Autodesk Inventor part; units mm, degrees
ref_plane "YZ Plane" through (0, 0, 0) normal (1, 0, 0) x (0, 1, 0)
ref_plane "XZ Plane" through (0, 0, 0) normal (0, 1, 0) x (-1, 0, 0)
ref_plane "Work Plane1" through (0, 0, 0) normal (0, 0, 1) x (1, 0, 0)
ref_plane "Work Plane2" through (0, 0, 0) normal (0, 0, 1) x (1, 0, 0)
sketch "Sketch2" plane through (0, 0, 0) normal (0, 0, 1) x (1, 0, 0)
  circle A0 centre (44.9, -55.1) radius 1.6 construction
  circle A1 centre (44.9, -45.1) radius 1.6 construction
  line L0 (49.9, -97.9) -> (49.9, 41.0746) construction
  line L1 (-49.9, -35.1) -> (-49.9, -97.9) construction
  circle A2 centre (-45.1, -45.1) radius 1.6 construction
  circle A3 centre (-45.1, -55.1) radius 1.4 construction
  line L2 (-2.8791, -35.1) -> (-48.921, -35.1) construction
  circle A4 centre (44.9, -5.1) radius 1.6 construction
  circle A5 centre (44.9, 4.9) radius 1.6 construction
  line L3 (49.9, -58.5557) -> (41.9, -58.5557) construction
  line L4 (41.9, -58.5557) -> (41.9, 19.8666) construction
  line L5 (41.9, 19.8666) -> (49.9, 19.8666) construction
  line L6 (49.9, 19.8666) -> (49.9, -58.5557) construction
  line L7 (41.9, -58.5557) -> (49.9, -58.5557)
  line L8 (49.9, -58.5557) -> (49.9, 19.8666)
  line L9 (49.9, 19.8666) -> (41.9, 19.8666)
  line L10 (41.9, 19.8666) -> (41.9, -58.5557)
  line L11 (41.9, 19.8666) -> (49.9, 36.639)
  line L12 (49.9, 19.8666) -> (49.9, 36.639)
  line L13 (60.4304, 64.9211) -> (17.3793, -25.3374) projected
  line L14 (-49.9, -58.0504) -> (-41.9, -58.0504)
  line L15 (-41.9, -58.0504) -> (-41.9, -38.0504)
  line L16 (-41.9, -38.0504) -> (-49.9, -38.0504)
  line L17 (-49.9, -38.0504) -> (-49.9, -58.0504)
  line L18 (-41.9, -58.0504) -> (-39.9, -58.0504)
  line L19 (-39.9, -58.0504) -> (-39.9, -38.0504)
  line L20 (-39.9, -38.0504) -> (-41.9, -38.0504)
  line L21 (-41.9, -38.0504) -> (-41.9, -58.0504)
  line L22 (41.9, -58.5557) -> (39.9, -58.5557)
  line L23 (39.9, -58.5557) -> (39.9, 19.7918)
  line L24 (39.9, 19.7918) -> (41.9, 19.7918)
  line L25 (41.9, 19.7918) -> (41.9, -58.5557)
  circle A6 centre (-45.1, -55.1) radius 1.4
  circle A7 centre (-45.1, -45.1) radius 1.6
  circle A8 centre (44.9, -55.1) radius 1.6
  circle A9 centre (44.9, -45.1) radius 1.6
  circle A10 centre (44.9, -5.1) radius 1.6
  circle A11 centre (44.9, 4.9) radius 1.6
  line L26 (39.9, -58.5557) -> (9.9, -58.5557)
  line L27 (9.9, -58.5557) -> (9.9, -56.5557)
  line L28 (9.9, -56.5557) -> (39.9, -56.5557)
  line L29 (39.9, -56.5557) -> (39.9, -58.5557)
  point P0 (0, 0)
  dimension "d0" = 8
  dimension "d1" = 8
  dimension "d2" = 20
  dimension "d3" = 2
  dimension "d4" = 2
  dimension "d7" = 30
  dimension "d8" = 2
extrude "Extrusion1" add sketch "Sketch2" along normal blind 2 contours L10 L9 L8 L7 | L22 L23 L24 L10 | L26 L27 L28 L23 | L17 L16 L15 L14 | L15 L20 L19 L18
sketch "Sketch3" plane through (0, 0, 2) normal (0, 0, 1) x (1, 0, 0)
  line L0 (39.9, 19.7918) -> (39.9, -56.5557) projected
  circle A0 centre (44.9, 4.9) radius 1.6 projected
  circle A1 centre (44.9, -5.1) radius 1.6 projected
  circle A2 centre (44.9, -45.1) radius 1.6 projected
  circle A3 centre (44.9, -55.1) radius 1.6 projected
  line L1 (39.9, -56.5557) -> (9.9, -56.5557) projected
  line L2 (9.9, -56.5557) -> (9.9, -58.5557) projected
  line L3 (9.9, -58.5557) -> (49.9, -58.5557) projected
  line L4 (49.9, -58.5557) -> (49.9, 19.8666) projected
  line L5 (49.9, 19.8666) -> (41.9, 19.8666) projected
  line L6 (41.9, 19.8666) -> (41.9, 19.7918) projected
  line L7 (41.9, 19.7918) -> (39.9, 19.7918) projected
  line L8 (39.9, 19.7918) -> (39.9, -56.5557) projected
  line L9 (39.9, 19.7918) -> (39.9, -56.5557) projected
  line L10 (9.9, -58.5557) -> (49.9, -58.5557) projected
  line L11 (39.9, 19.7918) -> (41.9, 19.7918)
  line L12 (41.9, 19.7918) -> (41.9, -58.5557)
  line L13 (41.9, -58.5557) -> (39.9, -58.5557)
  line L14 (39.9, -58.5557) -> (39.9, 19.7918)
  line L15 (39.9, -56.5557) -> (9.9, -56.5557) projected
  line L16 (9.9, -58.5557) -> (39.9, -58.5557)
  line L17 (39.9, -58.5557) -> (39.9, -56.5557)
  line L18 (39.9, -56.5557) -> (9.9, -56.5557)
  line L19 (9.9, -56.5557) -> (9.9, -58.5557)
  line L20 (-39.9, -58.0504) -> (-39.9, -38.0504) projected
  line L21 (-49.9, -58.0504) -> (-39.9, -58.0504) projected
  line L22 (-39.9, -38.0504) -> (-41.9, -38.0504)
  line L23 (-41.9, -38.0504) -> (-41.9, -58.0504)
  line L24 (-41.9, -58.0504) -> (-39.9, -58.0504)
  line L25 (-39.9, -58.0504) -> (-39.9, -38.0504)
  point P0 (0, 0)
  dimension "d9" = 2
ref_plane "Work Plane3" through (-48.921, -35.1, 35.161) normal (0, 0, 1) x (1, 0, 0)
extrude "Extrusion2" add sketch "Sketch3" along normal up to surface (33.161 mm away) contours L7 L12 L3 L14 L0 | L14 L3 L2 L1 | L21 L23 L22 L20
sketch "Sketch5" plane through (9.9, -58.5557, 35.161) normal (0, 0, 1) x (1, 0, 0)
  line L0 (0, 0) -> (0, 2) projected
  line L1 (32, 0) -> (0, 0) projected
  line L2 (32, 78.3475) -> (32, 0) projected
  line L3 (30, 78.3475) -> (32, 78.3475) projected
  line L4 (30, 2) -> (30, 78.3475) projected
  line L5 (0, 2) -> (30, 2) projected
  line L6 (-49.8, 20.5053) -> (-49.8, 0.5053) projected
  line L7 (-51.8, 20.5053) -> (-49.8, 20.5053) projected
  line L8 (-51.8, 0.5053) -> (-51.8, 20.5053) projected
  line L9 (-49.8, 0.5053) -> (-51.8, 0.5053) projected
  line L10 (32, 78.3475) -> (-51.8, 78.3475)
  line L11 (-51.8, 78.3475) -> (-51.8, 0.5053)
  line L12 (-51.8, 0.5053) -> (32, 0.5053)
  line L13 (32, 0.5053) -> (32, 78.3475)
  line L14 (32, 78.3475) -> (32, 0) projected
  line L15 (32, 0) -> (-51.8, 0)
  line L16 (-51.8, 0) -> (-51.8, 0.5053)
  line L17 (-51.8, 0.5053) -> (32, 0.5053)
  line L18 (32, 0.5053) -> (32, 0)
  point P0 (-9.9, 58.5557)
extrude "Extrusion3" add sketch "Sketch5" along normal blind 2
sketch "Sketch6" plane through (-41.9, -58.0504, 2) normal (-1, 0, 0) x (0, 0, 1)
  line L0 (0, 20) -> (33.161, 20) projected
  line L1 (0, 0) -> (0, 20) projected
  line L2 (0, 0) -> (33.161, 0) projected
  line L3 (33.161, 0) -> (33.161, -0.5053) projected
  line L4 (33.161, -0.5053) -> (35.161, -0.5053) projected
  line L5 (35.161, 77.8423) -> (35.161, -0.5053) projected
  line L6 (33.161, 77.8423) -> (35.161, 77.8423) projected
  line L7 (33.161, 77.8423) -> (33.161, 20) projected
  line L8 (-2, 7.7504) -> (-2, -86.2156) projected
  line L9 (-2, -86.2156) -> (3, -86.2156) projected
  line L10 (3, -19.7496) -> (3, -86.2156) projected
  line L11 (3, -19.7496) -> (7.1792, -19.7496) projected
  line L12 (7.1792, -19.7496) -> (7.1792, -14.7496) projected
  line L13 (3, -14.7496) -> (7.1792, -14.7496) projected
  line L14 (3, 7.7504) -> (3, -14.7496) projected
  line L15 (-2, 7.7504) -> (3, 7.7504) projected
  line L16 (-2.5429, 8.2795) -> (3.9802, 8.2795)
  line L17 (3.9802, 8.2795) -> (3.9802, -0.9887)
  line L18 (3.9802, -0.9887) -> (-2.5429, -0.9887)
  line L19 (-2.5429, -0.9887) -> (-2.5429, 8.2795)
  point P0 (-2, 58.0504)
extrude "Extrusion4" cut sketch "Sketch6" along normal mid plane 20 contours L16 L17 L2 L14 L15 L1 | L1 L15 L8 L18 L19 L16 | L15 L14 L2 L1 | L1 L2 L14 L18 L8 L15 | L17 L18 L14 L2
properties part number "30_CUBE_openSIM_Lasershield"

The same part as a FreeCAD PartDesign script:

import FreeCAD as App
import Part
import Sketcher
from FreeCAD import Vector
Q = App.Units.Quantity


def add_polygon(sketch, points):
    """Adds a closed chain of lines whose ends are joined by coincident constraints."""
    first, n = sketch.GeometryCount, len(points)
    for a, b in zip(points, points[1:] + points[:1]):
        sketch.addGeometry(Part.LineSegment(App.Vector(*a, 0), App.Vector(*b, 0)), False)
    for i in range(n):
        sketch.addConstraint(Sketcher.Constraint("Coincident", first + i, 2, first + (i + 1) % n, 1))

doc = App.newDocument("Part")
body = doc.addObject("PartDesign::Body", "Body")
body.AllowCompound = True

sketch1 = body.newObject("Sketcher::SketchObject", "Sketch")
sketch1.AttachmentSupport = (doc.getObject("XY_Plane"), [""])
sketch1.MapMode = "FlatFace"
add_polygon(sketch1, [(41.9, 19.87), (41.9, 19.79), (39.9, 19.79), (39.9, -56.56), (9.9, -56.56), (9.9, -58.56), (49.9, -58.56), (49.9, 19.87)])
sketch1.addGeometry(Part.Circle(Vector(44.9, -55.1, 0), Vector(0, 0, 1), 1.6), False)
sketch1.addGeometry(Part.Circle(Vector(44.9, -45.1, 0), Vector(0, 0, 1), 1.6), False)
sketch1.addGeometry(Part.Circle(Vector(44.9, -5.1, 0), Vector(0, 0, 1), 1.6), False)
sketch1.addGeometry(Part.Circle(Vector(44.9, 4.9, 0), Vector(0, 0, 1), 1.6), False)
add_polygon(sketch1, [(-49.9, -38.05), (-49.9, -58.05), (-39.9, -58.05), (-39.9, -38.05)])
sketch1.addGeometry(Part.Circle(Vector(-45.1, -55.1, 0), Vector(0, 0, 1), 1.4), False)
sketch1.addGeometry(Part.Circle(Vector(-45.1, -45.1, 0), Vector(0, 0, 1), 1.6), False)
sketch1.addConstraint([
    Sketcher.Constraint("Vertical", 0),
    Sketcher.Constraint("Horizontal", 1),
    Sketcher.Constraint("Vertical", 2),
    Sketcher.Constraint("Horizontal", 3),
    Sketcher.Constraint("Vertical", 4),
    Sketcher.Constraint("Horizontal", 5),
    Sketcher.Constraint("Vertical", 6),
    Sketcher.Constraint("Horizontal", 7),
    Sketcher.Constraint("Vertical", 12),
    Sketcher.Constraint("Horizontal", 13),
    Sketcher.Constraint("Vertical", 14),
    Sketcher.Constraint("Horizontal", 15),
    Sketcher.Constraint("Equal", 8, 9),
    Sketcher.Constraint("Equal", 9, 10),
    Sketcher.Constraint("Equal", 10, 11),
    Sketcher.Constraint("Equal", 11, 17),
    Sketcher.Constraint("Horizontal", 8, 3, 16, 3),
    Sketcher.Constraint("Horizontal", 9, 3, 17, 3),
    Sketcher.Constraint("Vertical", 8, 3, 9, 3),
    Sketcher.Constraint("Vertical", 9, 3, 10, 3),
    Sketcher.Constraint("Vertical", 10, 3, 11, 3),
    Sketcher.Constraint("Vertical", 16, 3, 17, 3),
    Sketcher.Constraint("Equal", 1, 4),
    Sketcher.Constraint("DistanceX", 1, 2, 1, 1, Q("2 mm")),
    Sketcher.Constraint("DistanceX", 3, 2, 3, 1, Q("30 mm")),
    Sketcher.Constraint("DistanceX", 7, 2, 7, 1, Q("8 mm")),
    Sketcher.Constraint("DistanceY", 12, 2, 12, 1, Q("20 mm")),
    Sketcher.Constraint("Diameter", 8, Q("3.2 mm")),
    Sketcher.Constraint("Diameter", 16, Q("2.8 mm")),
    Sketcher.Constraint("DistanceX", 13, 1, 13, 2, Q("10 mm")),
    Sketcher.Constraint("DistanceY", 8, 3, 9, 3, Q("10 mm")),
    Sketcher.Constraint("DistanceY", 9, 3, 10, 3, Q("40 mm")),
    Sketcher.Constraint("DistanceY", 10, 3, 11, 3, Q("10 mm")),
    Sketcher.Constraint("DistanceX", 16, 3, 8, 3, Q("90 mm")),
    Sketcher.Constraint("DistanceX", 0, 2, 11, 3, Q("3 mm")),
    Sketcher.Constraint("DistanceX", -1, 1, 8, 3, Q("44.9 mm")),
    Sketcher.Constraint("DistanceY", 8, 3, -1, 1, Q("55.1 mm")),
    Sketcher.Constraint("DistanceX", 12, 2, -1, 1, Q("49.9 mm")),
    Sketcher.Constraint("DistanceY", 0, 2, 0, 1, Q("0.0748 mm")),
    Sketcher.Constraint("DistanceY", 2, 2, 2, 1, Q("76.3475 mm")),
    Sketcher.Constraint("DistanceY", -1, 1, 0, 2, Q("19.7918 mm")),
    Sketcher.Constraint("DistanceY", 12, 2, -1, 1, Q("58.0504 mm")),
])
pad1 = body.newObject("PartDesign::Pad", "Pad")
pad1.Profile = sketch1
pad1.Length = 2

sketch2 = body.newObject("Sketcher::SketchObject", "Sketch001")
sketch2.AttachmentSupport = (doc.getObject("XY_Plane"), [""])
sketch2.MapMode = "FlatFace"
sketch2.AttachmentOffset = App.Placement(Vector(0, 0, 2), App.Rotation())
add_polygon(sketch2, [(41.9, 19.8), (39.9, 19.8), (39.9, -56.6), (9.9, -56.6), (9.9, -58.6), (41.9, -58.6)])
add_polygon(sketch2, [(-41.9, -58.1), (-39.9, -58.1), (-39.9, -38.1), (-41.9, -38.1)])
sketch2.addConstraint([
    Sketcher.Constraint("Horizontal", 0),
    Sketcher.Constraint("Vertical", 1),
    Sketcher.Constraint("Horizontal", 2),
    Sketcher.Constraint("Vertical", 3),
    Sketcher.Constraint("Horizontal", 4),
    Sketcher.Constraint("Vertical", 5),
    Sketcher.Constraint("Horizontal", 6),
    Sketcher.Constraint("Vertical", 7),
    Sketcher.Constraint("Horizontal", 8),
    Sketcher.Constraint("Vertical", 9),
    Sketcher.Constraint("Equal", 0, 6),
    Sketcher.Constraint("Equal", 8, 3),
    Sketcher.Constraint("DistanceX", 0, 2, 0, 1, Q("2 mm")),
    Sketcher.Constraint("DistanceX", 2, 2, 2, 1, Q("30 mm")),
    Sketcher.Constraint("DistanceY", 7, 1, 7, 2, Q("20 mm")),
    Sketcher.Constraint("DistanceX", -1, 1, 0, 2, Q("39.9 mm")),
    Sketcher.Constraint("DistanceX", 6, 2, -1, 1, Q("39.9 mm")),
    Sketcher.Constraint("DistanceY", 1, 2, 1, 1, Q("76.3475 mm")),
    Sketcher.Constraint("DistanceY", -1, 1, 0, 2, Q("19.7918 mm")),
    Sketcher.Constraint("DistanceY", 6, 2, -1, 1, Q("58.0504 mm")),
])
pad2 = body.newObject("PartDesign::Pad", "Pad001")
pad2.Profile = sketch2
pad2.Length = 33.161

sketch3 = body.newObject("Sketcher::SketchObject", "Sketch002")
sketch3.AttachmentSupport = (doc.getObject("XY_Plane"), [""])
sketch3.MapMode = "FlatFace"
sketch3.AttachmentOffset = App.Placement(Vector(0, 0, 35.161), App.Rotation())
add_polygon(sketch3, [(-42, -59), (42, -59), (42, 20), (-42, 20)])
sketch3.addConstraint([
    Sketcher.Constraint("Horizontal", 0),
    Sketcher.Constraint("Vertical", 1),
    Sketcher.Constraint("Horizontal", 2),
    Sketcher.Constraint("Vertical", 3),
    Sketcher.Constraint("DistanceX", 0, 1, 0, 2, Q("83.8 mm")),
    Sketcher.Constraint("DistanceX", -1, 1, 0, 2, Q("41.9 mm")),
    Sketcher.Constraint("DistanceY", 1, 1, 1, 2, Q("78.3475 mm")),
    Sketcher.Constraint("DistanceY", 0, 2, -1, 1, Q("58.5557 mm")),
])
pad3 = body.newObject("PartDesign::Pad", "Pad002")
pad3.Profile = sketch3
pad3.Length = 2

sketch4 = body.newObject("Sketcher::SketchObject", "Sketch003")
sketch4.AttachmentSupport = (doc.getObject("YZ_Plane"), [""])
sketch4.MapMode = "FlatFace"
sketch4.AttachmentOffset = App.Placement(Vector(0, 0, -41.9), App.Rotation())
add_polygon(sketch4, [(-50, 6), (-50, -1), (-59, -1), (-59, 6)])
sketch4.addConstraint([
    Sketcher.Constraint("Vertical", 0),
    Sketcher.Constraint("Horizontal", 1),
    Sketcher.Constraint("Vertical", 2),
    Sketcher.Constraint("Horizontal", 3),
    Sketcher.Constraint("DistanceY", 0, 2, 0, 1, Q("6.523 mm")),
    Sketcher.Constraint("DistanceX", 1, 2, 1, 1, Q("9.2682 mm")),
    Sketcher.Constraint("DistanceX", 0, 2, -1, 1, Q("49.771 mm")),
    Sketcher.Constraint("DistanceY", 0, 2, -1, 1, Q("0.543 mm")),
])
pocket1 = body.newObject("PartDesign::Pocket", "Pocket")
pocket1.Profile = sketch4
pocket1.Length = 20
pocket1.Midplane = True

doc.recompute()
